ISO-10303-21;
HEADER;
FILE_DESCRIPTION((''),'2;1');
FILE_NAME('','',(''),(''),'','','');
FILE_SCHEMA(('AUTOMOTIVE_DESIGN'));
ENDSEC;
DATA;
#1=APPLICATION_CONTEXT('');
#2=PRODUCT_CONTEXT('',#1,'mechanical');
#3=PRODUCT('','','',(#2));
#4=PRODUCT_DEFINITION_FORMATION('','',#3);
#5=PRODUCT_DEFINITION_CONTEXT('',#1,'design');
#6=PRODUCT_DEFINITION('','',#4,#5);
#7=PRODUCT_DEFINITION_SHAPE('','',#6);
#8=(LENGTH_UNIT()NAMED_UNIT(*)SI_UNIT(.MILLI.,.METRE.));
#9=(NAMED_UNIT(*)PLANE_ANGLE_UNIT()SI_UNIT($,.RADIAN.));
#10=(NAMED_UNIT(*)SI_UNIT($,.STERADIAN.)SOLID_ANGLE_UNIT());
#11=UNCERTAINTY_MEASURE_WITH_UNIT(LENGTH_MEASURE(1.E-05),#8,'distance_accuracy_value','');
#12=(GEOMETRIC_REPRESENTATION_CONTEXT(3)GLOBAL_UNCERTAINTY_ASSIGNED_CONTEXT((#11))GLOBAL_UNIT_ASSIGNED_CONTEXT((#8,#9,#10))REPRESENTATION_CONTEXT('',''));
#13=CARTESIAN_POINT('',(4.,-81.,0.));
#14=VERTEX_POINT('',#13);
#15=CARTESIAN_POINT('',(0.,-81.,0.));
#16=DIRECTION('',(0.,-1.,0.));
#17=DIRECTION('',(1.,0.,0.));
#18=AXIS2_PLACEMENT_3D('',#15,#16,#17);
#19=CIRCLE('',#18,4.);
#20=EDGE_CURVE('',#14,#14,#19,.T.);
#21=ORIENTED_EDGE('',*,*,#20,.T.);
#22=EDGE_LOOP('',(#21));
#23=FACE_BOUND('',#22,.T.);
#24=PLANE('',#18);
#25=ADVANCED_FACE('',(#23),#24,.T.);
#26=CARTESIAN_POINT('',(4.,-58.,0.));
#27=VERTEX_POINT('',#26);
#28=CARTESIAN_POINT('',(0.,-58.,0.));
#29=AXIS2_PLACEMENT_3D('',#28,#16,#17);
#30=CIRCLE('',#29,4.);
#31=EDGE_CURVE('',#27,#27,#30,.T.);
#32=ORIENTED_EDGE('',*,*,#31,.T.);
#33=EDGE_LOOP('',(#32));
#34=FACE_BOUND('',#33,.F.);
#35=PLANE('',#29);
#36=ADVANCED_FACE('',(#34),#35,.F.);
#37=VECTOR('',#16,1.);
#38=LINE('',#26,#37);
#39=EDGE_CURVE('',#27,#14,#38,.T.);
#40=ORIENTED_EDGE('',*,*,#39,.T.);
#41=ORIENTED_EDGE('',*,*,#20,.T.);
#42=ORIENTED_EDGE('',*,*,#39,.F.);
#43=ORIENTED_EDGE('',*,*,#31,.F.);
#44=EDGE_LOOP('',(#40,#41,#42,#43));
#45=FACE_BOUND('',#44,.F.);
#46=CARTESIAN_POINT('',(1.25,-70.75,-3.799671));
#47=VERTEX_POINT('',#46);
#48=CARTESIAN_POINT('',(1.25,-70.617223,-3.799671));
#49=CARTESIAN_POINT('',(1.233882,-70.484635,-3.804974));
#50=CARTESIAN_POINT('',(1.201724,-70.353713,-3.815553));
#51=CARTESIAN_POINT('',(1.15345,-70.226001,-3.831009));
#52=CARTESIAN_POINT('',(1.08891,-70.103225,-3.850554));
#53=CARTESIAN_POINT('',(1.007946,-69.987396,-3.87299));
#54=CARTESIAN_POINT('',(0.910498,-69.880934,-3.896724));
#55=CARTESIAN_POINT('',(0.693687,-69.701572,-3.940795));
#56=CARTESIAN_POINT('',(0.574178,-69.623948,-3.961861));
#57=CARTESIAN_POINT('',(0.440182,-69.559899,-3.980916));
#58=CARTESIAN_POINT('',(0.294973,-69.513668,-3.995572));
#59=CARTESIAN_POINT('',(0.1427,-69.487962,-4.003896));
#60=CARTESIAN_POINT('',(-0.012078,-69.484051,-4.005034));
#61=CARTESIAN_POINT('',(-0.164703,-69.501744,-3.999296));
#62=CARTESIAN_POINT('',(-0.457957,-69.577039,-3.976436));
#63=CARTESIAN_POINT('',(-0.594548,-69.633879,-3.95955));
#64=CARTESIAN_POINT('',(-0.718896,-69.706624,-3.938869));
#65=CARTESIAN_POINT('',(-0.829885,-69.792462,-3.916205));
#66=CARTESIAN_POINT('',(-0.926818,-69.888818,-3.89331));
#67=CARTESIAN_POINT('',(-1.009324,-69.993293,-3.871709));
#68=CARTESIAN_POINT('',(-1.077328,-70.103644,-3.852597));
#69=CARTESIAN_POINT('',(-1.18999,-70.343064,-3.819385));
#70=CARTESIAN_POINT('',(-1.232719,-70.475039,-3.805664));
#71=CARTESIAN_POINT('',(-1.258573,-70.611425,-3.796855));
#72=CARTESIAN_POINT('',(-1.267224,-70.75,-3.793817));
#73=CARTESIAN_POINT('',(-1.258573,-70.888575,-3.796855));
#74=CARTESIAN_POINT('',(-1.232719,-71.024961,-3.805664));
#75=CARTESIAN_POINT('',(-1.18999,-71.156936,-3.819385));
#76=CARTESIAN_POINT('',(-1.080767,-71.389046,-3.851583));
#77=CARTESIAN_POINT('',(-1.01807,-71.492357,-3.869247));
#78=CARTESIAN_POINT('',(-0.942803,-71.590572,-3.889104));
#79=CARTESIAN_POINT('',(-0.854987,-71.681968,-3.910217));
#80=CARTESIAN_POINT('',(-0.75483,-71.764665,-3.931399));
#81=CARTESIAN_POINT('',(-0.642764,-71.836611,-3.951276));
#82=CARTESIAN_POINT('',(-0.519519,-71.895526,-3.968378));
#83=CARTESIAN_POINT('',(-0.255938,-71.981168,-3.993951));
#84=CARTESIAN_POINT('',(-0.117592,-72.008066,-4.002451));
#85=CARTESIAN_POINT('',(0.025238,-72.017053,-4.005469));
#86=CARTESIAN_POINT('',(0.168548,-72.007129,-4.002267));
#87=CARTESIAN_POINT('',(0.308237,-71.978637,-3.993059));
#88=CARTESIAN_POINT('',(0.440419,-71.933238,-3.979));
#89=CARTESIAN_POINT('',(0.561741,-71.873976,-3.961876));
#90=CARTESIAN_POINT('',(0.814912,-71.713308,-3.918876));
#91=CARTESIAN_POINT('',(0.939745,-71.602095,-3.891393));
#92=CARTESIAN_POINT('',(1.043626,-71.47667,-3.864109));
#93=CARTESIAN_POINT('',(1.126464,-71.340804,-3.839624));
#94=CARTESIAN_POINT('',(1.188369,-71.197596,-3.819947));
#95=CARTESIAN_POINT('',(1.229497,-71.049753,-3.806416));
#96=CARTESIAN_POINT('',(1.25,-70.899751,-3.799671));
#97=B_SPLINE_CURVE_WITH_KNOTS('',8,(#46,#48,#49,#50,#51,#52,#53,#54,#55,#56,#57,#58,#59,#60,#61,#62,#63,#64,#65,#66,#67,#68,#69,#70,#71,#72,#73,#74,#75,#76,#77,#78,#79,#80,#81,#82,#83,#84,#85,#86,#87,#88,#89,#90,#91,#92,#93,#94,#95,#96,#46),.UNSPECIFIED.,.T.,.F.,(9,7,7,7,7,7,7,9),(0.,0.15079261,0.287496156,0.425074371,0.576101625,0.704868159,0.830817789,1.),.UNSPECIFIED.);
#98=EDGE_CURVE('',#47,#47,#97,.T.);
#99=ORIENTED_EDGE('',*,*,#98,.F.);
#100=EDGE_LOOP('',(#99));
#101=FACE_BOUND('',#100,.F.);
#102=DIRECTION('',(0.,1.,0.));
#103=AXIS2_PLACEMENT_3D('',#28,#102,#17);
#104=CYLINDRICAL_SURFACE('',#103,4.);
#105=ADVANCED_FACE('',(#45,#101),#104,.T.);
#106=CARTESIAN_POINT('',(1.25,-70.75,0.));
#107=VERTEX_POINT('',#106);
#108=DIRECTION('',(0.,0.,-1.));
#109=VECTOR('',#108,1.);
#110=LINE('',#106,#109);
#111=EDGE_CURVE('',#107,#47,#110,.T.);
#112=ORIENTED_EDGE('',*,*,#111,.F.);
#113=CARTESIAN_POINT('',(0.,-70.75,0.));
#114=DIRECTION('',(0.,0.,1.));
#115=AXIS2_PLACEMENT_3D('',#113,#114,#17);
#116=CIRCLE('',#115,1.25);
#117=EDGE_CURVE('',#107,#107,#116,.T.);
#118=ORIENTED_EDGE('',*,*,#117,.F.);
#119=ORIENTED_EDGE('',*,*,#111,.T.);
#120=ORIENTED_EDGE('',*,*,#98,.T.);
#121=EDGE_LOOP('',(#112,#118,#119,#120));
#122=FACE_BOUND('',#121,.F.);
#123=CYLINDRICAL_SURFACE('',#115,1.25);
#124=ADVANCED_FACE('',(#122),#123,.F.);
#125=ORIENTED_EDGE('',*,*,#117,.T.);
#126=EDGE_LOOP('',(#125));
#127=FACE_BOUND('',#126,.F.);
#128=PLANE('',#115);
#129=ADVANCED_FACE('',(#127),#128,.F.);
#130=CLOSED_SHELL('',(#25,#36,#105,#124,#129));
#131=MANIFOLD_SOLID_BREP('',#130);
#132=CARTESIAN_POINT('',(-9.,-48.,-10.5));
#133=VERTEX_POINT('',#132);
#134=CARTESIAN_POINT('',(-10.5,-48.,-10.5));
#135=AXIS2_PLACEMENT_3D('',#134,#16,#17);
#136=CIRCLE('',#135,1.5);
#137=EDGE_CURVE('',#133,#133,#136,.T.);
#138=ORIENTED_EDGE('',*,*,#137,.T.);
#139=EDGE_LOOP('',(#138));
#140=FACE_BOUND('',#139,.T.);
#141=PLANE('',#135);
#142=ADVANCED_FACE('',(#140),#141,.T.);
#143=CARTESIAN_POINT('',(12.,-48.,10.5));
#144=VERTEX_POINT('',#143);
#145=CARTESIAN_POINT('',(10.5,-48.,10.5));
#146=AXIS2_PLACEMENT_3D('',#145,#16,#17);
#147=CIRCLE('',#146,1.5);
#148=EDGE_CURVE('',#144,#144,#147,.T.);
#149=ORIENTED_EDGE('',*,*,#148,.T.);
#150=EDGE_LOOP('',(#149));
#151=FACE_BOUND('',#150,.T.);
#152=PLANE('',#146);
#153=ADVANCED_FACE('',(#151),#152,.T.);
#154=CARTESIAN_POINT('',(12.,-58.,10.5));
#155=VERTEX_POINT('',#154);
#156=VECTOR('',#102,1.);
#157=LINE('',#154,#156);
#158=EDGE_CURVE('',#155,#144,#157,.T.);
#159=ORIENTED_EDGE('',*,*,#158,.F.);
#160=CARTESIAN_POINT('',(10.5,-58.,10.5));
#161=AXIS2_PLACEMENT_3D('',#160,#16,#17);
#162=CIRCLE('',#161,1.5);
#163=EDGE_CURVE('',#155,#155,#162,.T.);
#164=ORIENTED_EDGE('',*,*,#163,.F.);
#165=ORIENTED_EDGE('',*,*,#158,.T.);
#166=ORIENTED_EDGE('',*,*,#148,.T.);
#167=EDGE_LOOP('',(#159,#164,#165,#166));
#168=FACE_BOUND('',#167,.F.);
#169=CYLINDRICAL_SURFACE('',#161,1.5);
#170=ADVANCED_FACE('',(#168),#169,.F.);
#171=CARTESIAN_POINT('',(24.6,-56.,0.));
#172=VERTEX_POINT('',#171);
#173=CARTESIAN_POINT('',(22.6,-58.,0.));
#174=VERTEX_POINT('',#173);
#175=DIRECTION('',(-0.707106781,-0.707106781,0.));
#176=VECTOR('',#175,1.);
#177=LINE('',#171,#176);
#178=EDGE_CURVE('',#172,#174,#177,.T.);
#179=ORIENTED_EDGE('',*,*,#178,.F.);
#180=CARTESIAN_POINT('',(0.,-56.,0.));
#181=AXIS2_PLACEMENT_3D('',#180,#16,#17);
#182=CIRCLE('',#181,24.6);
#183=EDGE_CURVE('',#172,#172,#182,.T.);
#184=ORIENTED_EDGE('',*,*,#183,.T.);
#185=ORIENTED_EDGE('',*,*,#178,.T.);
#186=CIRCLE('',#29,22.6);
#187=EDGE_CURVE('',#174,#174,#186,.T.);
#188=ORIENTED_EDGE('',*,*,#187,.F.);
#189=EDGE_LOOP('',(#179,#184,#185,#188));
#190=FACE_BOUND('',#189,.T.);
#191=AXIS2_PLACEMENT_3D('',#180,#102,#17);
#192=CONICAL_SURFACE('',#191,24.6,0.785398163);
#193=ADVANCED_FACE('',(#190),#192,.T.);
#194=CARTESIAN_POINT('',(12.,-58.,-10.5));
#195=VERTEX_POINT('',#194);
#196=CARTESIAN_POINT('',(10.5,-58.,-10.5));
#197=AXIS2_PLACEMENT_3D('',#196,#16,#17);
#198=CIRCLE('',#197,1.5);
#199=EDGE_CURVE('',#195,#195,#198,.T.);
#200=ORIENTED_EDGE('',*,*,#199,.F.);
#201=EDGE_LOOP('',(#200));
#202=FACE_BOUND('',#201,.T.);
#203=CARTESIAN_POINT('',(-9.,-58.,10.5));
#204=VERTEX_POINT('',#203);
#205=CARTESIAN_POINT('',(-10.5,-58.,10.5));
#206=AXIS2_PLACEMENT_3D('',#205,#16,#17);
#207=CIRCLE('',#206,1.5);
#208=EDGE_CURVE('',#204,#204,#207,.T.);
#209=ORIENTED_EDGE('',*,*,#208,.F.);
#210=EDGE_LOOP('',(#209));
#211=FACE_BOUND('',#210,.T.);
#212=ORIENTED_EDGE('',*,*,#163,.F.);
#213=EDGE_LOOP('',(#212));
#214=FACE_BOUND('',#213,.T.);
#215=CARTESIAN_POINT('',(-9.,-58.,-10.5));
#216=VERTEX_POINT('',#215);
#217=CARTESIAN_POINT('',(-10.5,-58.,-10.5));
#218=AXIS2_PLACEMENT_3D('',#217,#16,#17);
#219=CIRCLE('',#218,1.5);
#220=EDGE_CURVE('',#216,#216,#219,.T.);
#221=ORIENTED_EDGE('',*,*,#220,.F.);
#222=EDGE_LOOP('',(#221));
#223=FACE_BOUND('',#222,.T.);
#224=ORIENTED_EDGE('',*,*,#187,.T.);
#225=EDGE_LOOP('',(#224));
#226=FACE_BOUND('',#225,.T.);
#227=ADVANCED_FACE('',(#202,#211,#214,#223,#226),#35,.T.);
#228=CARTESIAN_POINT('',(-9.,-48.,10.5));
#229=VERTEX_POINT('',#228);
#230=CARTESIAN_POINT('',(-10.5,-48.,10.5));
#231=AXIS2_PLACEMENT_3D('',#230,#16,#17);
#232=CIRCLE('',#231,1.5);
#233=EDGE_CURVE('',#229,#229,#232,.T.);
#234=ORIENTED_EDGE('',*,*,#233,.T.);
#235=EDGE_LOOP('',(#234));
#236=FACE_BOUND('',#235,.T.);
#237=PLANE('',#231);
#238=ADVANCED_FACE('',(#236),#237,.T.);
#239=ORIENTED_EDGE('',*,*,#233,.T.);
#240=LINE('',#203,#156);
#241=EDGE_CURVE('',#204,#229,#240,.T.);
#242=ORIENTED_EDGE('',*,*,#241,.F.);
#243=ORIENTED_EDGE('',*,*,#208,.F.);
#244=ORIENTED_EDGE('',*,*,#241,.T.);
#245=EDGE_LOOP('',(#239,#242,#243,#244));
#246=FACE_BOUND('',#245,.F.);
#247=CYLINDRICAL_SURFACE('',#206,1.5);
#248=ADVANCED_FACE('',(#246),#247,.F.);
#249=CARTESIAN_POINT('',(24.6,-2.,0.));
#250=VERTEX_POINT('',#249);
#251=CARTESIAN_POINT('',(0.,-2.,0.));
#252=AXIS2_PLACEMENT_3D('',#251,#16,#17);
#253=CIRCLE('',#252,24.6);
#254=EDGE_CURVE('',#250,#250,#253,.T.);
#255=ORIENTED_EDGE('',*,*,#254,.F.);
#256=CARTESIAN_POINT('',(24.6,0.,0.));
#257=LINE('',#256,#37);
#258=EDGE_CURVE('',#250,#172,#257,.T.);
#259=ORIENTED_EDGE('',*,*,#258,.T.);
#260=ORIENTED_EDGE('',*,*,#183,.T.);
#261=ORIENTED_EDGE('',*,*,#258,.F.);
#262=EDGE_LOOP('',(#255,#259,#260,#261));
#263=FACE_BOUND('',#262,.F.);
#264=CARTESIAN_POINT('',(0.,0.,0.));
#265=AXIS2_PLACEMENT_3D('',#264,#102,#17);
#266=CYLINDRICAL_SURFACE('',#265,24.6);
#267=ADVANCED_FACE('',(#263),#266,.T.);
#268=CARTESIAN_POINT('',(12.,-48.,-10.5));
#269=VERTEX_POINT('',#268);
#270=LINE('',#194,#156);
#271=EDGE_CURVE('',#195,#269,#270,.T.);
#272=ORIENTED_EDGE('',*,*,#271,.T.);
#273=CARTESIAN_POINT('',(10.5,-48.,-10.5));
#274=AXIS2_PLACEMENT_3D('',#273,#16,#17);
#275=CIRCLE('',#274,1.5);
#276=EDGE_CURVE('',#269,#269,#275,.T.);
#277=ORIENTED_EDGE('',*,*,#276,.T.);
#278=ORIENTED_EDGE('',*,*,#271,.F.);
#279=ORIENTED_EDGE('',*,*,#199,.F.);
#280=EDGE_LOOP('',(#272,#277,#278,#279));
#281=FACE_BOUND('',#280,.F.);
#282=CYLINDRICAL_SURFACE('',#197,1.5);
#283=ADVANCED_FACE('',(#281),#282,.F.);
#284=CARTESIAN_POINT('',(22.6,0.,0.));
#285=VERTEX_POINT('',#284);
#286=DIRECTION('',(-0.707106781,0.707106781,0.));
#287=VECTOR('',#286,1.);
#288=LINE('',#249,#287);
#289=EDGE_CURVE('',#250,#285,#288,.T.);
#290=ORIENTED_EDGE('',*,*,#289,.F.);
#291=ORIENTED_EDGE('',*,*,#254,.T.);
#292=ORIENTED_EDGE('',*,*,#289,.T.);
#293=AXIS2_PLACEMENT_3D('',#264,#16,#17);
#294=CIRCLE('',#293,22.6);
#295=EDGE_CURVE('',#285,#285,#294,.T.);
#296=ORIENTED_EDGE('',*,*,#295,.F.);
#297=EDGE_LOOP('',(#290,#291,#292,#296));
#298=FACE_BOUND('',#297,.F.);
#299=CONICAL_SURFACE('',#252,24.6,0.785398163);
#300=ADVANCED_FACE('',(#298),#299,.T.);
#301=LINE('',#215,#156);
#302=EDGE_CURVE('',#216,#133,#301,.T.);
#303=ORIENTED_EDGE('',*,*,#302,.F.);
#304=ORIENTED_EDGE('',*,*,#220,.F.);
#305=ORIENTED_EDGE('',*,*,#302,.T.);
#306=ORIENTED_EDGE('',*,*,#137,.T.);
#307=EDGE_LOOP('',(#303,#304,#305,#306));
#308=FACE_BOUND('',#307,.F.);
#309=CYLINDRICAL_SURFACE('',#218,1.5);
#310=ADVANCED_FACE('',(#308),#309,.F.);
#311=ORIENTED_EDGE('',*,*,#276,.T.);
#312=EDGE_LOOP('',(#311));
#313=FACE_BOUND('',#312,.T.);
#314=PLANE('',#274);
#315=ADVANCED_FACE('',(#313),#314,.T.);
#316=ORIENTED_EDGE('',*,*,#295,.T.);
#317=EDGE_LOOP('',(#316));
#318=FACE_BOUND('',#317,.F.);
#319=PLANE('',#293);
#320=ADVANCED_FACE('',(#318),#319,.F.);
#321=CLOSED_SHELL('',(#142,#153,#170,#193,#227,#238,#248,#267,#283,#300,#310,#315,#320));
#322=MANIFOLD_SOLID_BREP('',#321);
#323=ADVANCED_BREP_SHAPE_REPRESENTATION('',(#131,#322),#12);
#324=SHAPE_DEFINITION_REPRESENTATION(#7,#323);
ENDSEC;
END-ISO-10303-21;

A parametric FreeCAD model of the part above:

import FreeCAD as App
import Part
import Sketcher

V = App.Vector


def edges_at(feature, points):
    """Names of the edges that pass closest to the given points."""
    edges = feature.Shape.Edges
    near = lambda p: min(range(len(edges)), key=lambda i: edges[i].distToShape(Part.Vertex(*p))[0])
    return sorted({f"Edge{near(p) + 1}" for p in points})

doc = App.newDocument("Part")
params = doc.addObject("Spreadsheet::Sheet", "Params")
for row, (alias, value) in enumerate([
    ("sketch1_diameter", "49.2 mm"),
    ("pad1_length", "58 mm"),
    ("sketch2_diameter", "3 mm"),
    ("pocket1_length", "10 mm"),
    ("chamfer_size", "2 mm"),
    ("sketch3_diameter", "8 mm"),
    ("pad2_length", "23 mm"),
    ("sketch4_diameter", "2.5 mm"),
    ("pocket2_length", "4 mm"),
], start=1):
    params.set(f"A{row}", alias)
    params.set(f"B{row}", "=" + value)
    params.setAlias(f"B{row}", alias)

body = doc.addObject("PartDesign::Body", "Body")

# Sketch on XZ plane
sketch1 = body.newObject("Sketcher::SketchObject", "Sketch")
sketch1.AttachmentSupport = (doc.getObject("XZ_Plane"), [""])
sketch1.MapMode = "FlatFace"
sketch1.addGeometry(Part.Circle(V(0, 0, 0), V(0, 0, 1), 25), False)
sketch1.addConstraint(Sketcher.Constraint("Coincident", 0, 3, -1, 1))
sketch1.addConstraint(Sketcher.Constraint("Diameter", 0, 49.2))
sketch1.setExpression("Constraints[1]", "Params.sketch1_diameter")
pad1 = body.newObject("PartDesign::Pad", "Pad")
pad1.Profile = sketch1
pad1.setExpression("Length", "Params.pad1_length")

# Sketch on XZ plane
sketch2 = body.newObject("Sketcher::SketchObject", "Sketch001")
sketch2.AttachmentSupport = (doc.getObject("XZ_Plane"), [""])
sketch2.MapMode = "FlatFace"
sketch2.AttachmentOffset = App.Placement(V(0, 0, 58), App.Rotation())
sketch2.addGeometry(Part.Circle(V(10.5, 10.5, 0), V(0, 0, 1), 1.5), False)
sketch2.addGeometry(Part.Circle(V(10.5, -10.5, 0), V(0, 0, 1), 1.5), False)
sketch2.addGeometry(Part.Circle(V(-10.5, -10.5, 0), V(0, 0, 1), 1.5), False)
sketch2.addGeometry(Part.Circle(V(-10.5, 10.5, 0), V(0, 0, 1), 1.5), False)
sketch2.addConstraint(Sketcher.Constraint("Equal", 0, 1))
sketch2.addConstraint(Sketcher.Constraint("Equal", 1, 2))
sketch2.addConstraint(Sketcher.Constraint("Equal", 2, 3))
sketch2.addConstraint(Sketcher.Constraint("Symmetric", 0, 3, 2, 3, -1, 1))
sketch2.addConstraint(Sketcher.Constraint("Symmetric", 1, 3, 3, 3, -1, 1))
sketch2.addConstraint(Sketcher.Constraint("Symmetric", 1, 3, 2, 3, -2))
sketch2.addConstraint(Sketcher.Constraint("Diameter", 0, 3.0))
sketch2.addConstraint(Sketcher.Constraint("DistanceY", 1, 3, 0, 3, 21.0))
sketch2.addConstraint(Sketcher.Constraint("DistanceX", 2, 3, 1, 3, 21.0))
sketch2.setExpression("Constraints[6]", "Params.sketch2_diameter")
pocket1 = body.newObject("PartDesign::Pocket", "Pocket")
pocket1.Profile = sketch2
pocket1.setExpression("Length", "Params.pocket1_length")
doc.recompute()

chamfer = body.newObject("PartDesign::Chamfer", "Chamfer")
chamfer.Base = (pocket1, edges_at(pocket1, [(-24.6, 0, 0), (-24.6, -58, 0)]))
chamfer.setExpression("Size", "Params.chamfer_size")
body2 = doc.addObject("PartDesign::Body", "Body001")

# Sketch on XZ plane
sketch3 = body2.newObject("Sketcher::SketchObject", "Sketch002")
sketch3.AttachmentSupport = (doc.getObject("XZ_Plane001"), [""])
sketch3.MapMode = "FlatFace"
sketch3.AttachmentOffset = App.Placement(V(0, 0, 58), App.Rotation())
sketch3.addGeometry(Part.Circle(V(0, 0, 0), V(0, 0, 1), 4), False)
sketch3.addConstraint(Sketcher.Constraint("Coincident", 0, 3, -1, 1))
sketch3.addConstraint(Sketcher.Constraint("Diameter", 0, 8.0))
sketch3.setExpression("Constraints[1]", "Params.sketch3_diameter")
pad2 = body2.newObject("PartDesign::Pad", "Pad001")
pad2.Profile = sketch3
pad2.setExpression("Length", "Params.pad2_length")

# Sketch on XY plane
sketch4 = body2.newObject("Sketcher::SketchObject", "Sketch003")
sketch4.AttachmentSupport = (doc.getObject("XY_Plane001"), [""])
sketch4.MapMode = "FlatFace"
sketch4.addGeometry(Part.Circle(V(0, -70.8, 0), V(0, 0, 1), 1.2), False)
sketch4.addConstraint(Sketcher.Constraint("PointOnObject", 0, 3, -2))
sketch4.addConstraint(Sketcher.Constraint("Diameter", 0, 2.5))
sketch4.addConstraint(Sketcher.Constraint("DistanceY", 0, 3, -1, 1, 70.75))
sketch4.setExpression("Constraints[1]", "Params.sketch4_diameter")
pocket2 = body2.newObject("PartDesign::Pocket", "Pocket001")
pocket2.Profile = sketch4
pocket2.setExpression("Length", "Params.pocket2_length")

doc.recompute()
